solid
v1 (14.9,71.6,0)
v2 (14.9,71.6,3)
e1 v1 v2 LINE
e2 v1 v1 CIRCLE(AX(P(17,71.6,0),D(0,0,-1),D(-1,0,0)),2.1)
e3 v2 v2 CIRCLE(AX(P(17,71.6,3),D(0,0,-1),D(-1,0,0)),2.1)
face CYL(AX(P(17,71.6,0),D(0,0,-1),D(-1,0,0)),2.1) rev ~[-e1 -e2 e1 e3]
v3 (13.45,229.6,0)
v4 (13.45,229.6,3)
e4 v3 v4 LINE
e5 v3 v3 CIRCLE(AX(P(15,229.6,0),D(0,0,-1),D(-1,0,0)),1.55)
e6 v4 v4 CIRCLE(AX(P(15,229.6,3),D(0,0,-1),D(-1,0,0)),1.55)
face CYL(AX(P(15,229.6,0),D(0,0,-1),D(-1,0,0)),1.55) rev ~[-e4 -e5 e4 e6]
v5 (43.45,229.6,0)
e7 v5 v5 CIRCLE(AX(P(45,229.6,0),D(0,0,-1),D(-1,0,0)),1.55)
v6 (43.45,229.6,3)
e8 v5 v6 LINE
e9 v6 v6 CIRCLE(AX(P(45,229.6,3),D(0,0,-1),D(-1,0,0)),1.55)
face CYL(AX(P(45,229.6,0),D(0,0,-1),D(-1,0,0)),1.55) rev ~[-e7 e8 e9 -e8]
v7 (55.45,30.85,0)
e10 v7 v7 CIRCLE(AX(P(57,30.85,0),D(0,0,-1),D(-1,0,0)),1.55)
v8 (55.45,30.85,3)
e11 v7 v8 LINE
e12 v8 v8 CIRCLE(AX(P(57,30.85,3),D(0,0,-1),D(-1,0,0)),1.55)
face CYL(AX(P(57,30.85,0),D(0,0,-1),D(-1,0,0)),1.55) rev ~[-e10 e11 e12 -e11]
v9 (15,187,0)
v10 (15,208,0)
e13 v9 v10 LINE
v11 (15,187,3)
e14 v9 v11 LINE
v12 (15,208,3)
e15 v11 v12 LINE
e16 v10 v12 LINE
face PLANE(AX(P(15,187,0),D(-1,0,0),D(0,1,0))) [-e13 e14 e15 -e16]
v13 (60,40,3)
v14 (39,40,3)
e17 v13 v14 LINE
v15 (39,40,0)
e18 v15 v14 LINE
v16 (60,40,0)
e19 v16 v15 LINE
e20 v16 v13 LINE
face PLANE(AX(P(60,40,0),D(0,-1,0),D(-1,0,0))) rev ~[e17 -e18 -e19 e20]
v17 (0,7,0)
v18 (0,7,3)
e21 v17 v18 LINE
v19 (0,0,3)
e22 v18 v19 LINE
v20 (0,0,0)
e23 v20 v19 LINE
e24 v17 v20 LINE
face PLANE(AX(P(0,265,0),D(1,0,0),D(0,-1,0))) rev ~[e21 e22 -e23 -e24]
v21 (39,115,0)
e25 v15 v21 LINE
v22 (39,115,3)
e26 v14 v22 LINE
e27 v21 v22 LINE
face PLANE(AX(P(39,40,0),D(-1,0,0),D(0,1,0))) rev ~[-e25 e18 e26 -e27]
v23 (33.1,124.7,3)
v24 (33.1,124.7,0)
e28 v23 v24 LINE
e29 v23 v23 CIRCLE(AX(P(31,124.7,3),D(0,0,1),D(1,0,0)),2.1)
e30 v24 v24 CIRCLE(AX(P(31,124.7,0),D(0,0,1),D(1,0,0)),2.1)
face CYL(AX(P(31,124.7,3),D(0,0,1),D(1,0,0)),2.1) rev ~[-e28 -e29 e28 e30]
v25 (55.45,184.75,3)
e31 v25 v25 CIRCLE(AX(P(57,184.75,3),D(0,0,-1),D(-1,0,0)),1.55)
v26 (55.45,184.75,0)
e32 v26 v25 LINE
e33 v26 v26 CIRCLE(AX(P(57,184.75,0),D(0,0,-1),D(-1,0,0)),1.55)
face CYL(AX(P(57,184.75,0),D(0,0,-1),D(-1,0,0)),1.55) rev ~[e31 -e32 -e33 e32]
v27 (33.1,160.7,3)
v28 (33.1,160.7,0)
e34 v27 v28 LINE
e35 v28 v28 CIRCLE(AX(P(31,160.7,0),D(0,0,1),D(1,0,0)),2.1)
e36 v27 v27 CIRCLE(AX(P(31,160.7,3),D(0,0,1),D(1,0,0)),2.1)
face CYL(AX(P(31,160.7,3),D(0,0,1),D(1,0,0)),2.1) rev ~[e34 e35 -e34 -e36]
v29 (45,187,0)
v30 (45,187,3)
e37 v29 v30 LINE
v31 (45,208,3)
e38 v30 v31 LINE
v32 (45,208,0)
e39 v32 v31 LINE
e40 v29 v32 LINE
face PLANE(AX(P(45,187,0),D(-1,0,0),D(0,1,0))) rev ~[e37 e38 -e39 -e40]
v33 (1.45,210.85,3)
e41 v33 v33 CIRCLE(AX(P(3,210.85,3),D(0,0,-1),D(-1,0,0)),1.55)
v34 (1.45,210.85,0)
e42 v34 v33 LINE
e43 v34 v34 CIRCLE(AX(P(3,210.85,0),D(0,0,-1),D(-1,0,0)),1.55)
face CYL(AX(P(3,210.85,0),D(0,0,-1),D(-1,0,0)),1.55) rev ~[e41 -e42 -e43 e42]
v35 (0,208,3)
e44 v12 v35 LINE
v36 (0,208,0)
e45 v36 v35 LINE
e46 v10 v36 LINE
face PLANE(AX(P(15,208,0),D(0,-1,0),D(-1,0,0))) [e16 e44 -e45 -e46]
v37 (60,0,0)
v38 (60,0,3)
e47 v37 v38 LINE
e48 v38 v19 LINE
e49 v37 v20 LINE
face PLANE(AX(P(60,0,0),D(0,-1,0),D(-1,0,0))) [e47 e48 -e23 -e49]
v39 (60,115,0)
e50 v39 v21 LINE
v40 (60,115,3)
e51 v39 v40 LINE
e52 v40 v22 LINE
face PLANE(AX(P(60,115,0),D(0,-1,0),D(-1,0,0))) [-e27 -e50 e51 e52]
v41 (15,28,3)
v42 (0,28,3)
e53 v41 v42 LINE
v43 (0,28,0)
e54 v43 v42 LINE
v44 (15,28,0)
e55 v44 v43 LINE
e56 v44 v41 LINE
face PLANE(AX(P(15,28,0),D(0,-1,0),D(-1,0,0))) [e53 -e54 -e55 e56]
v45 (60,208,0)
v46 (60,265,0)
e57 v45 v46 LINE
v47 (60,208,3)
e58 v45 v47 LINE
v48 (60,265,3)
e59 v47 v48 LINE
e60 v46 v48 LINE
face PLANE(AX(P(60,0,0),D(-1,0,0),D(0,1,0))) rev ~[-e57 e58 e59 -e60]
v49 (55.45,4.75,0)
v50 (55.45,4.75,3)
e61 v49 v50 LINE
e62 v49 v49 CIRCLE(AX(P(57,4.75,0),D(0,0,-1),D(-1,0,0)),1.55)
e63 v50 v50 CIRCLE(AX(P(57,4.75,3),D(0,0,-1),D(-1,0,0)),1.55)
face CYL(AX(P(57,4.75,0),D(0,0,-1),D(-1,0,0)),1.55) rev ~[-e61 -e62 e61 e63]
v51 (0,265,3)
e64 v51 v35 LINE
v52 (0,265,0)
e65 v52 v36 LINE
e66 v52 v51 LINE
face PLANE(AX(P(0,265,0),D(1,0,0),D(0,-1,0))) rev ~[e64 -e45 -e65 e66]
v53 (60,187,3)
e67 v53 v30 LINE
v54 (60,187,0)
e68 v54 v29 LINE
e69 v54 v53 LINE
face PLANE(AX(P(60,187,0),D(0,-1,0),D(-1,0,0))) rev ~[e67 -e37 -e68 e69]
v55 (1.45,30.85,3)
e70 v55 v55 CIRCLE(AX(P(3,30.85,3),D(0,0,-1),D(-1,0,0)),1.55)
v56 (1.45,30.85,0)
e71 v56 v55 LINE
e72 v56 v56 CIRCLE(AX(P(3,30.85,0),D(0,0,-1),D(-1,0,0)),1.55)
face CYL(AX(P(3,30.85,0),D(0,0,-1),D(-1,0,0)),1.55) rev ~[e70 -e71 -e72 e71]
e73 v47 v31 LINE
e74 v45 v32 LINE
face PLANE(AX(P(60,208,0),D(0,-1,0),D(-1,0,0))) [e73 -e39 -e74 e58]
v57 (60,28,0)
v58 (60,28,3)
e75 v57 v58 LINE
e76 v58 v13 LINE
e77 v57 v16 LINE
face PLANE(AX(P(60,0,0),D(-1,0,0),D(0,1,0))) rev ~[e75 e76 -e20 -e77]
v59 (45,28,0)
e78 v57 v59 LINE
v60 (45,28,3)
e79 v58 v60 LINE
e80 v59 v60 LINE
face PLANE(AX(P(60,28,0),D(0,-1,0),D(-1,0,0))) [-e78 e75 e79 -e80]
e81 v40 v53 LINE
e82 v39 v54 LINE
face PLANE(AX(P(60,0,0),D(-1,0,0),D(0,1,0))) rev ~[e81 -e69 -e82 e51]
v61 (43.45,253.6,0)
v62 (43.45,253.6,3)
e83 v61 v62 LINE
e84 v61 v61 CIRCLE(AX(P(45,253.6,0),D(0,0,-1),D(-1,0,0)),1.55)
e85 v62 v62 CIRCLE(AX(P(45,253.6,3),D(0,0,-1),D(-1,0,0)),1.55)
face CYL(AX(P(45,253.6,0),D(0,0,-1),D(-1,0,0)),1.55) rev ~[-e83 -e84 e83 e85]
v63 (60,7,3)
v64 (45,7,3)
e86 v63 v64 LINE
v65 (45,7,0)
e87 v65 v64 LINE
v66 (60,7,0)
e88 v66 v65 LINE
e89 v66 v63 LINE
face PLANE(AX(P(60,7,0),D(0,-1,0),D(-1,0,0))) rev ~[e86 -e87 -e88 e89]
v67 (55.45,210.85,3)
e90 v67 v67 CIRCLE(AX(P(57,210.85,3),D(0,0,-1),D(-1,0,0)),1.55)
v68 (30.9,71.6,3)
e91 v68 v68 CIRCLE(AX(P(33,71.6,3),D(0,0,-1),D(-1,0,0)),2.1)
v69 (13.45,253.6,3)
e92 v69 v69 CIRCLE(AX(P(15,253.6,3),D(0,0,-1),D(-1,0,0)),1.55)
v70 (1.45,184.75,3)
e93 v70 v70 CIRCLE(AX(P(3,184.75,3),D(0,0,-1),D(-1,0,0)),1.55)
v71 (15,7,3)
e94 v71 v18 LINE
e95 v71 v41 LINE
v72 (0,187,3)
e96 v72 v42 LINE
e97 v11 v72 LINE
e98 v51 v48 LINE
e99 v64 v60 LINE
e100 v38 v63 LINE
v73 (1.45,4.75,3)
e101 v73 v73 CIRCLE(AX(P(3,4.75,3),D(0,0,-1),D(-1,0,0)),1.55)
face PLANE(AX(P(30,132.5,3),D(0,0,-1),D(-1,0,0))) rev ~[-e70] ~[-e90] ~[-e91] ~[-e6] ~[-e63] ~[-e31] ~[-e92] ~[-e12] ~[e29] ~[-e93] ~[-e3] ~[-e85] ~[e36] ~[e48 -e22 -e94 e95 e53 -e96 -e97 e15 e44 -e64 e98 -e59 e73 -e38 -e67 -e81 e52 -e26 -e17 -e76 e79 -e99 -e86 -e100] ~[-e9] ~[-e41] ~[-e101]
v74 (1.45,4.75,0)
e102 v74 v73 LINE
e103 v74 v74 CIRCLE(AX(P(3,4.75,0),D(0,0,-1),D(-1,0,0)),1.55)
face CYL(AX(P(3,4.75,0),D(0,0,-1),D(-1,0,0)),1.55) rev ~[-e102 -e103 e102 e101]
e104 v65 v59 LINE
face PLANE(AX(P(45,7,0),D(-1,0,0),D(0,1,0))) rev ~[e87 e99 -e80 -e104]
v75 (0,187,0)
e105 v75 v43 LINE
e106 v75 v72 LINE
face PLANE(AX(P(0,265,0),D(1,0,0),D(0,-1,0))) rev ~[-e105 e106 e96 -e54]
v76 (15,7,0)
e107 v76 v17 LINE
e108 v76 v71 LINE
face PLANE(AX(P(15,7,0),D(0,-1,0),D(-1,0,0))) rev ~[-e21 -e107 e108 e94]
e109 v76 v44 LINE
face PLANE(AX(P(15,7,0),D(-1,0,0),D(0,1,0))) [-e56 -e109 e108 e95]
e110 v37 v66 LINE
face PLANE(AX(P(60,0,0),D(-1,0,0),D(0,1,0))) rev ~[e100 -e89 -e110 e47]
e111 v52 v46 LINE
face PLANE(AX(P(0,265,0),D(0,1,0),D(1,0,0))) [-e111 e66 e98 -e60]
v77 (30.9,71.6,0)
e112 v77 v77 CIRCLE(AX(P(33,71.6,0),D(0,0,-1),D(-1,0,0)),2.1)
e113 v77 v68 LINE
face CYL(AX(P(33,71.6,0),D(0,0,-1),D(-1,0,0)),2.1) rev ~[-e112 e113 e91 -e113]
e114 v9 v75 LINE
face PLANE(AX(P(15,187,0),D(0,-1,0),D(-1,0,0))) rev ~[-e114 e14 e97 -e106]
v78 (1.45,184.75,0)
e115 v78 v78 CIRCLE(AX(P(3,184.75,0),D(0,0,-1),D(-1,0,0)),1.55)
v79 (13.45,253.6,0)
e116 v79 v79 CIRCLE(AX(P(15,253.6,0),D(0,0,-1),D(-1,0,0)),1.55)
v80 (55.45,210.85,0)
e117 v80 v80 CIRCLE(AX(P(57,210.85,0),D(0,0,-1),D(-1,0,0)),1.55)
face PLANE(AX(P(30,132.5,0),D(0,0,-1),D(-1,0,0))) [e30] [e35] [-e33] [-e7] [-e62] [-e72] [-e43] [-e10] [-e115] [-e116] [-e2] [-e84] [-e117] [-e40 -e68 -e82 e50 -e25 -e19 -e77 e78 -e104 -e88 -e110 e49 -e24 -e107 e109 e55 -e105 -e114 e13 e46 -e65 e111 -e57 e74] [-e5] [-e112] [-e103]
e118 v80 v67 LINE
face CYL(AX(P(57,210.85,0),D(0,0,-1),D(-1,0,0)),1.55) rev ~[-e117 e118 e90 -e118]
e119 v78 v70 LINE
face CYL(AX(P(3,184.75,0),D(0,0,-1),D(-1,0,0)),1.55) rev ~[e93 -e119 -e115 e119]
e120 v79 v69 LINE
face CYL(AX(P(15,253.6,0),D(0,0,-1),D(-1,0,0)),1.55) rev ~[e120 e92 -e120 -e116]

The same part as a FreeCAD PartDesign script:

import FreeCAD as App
import Part
import Sketcher


def add_polygon(sketch, points):
    """Adds a closed chain of lines whose ends are joined by coincident constraints."""
    first, n = sketch.GeometryCount, len(points)
    for a, b in zip(points, points[1:] + points[:1]):
        sketch.addGeometry(Part.LineSegment(App.Vector(*a, 0), App.Vector(*b, 0)), False)
    for i in range(n):
        sketch.addConstraint(Sketcher.Constraint("Coincident", first + i, 2, first + (i + 1) % n, 1))

doc = App.newDocument("Part")
params = doc.addObject("Spreadsheet::Sheet", "Params")
for row, (alias, value) in enumerate([
    ("sketch1_width", "60 mm"),
    ("sketch1_height", "265 mm"),
    ("pad1_length", "3 mm"),
    ("sketch2_width", "15 mm"),
    ("sketch2_height", "21 mm"),
    ("pocket1_length", "3 mm"),
    ("sketch3_diameter", "3.1 mm"),
    ("sketch4_width", "21 mm"),
    ("sketch4_height", "75 mm"),
    ("sketch5_diameter", "4.2 mm"),
    ("sketch6_diameter", "4.2 mm"),
], start=1):
    params.set(f"A{row}", alias)
    params.set(f"B{row}", "=" + value)
    params.setAlias(f"B{row}", alias)

body = doc.addObject("PartDesign::Body", "Body")

sketch1 = body.newObject("Sketcher::SketchObject", "Sketch")
sketch1.AttachmentSupport = (doc.getObject("XY_Plane"), [""])
sketch1.MapMode = "FlatFace"
add_polygon(sketch1, [(0, 265), (0, 0), (60, 0), (60, 265)])
sketch1.addConstraint(Sketcher.Constraint("Vertical", 0))
sketch1.addConstraint(Sketcher.Constraint("Horizontal", 1))
sketch1.addConstraint(Sketcher.Constraint("Vertical", 2))
sketch1.addConstraint(Sketcher.Constraint("Horizontal", 3))
sketch1.addConstraint(Sketcher.Constraint("Coincident", 0, 2, -1, 1))
sketch1.addConstraint(Sketcher.Constraint("DistanceX", 1, 1, 1, 2, 60.0))
sketch1.addConstraint(Sketcher.Constraint("DistanceY", 0, 2, 0, 1, 265.0))
sketch1.setExpression("Constraints[9]", "Params.sketch1_width")
sketch1.setExpression("Constraints[10]", "Params.sketch1_height")
pad1 = body.newObject("PartDesign::Pad", "Pad")
pad1.Profile = sketch1
pad1.setExpression("Length", "Params.pad1_length")

sketch2 = body.newObject("Sketcher::SketchObject", "Sketch001")
sketch2.AttachmentSupport = (doc.getObject("XY_Plane"), [""])
sketch2.MapMode = "FlatFace"
add_polygon(sketch2, [(60, 28), (60, 7), (45, 7), (45, 28)])
add_polygon(sketch2, [(15, 28), (15, 7), (0, 7), (0, 28)])
add_polygon(sketch2, [(15, 208), (15, 187), (0, 187), (0, 208)])
add_polygon(sketch2, [(60, 208), (60, 187), (45, 187), (45, 208)])
sketch2.addConstraint(Sketcher.Constraint("Vertical", 0))
sketch2.addConstraint(Sketcher.Constraint("Horizontal", 1))
sketch2.addConstraint(Sketcher.Constraint("Vertical", 2))
sketch2.addConstraint(Sketcher.Constraint("Horizontal", 3))
sketch2.addConstraint(Sketcher.Constraint("Vertical", 4))
sketch2.addConstraint(Sketcher.Constraint("Horizontal", 5))
sketch2.addConstraint(Sketcher.Constraint("Vertical", 6))
sketch2.addConstraint(Sketcher.Constraint("Horizontal", 7))
sketch2.addConstraint(Sketcher.Constraint("Vertical", 8))
sketch2.addConstraint(Sketcher.Constraint("Horizontal", 9))
sketch2.addConstraint(Sketcher.Constraint("Vertical", 10))
sketch2.addConstraint(Sketcher.Constraint("Horizontal", 11))
sketch2.addConstraint(Sketcher.Constraint("Vertical", 12))
sketch2.addConstraint(Sketcher.Constraint("Horizontal", 13))
sketch2.addConstraint(Sketcher.Constraint("Vertical", 14))
sketch2.addConstraint(Sketcher.Constraint("Horizontal", 15))
sketch2.addConstraint(Sketcher.Constraint("PointOnObject", 5, 2, -2))
sketch2.addConstraint(Sketcher.Constraint("PointOnObject", 9, 2, -2))
sketch2.addConstraint(Sketcher.Constraint("Horizontal", 1, 2, 4, 2))
sketch2.addConstraint(Sketcher.Constraint("Horizontal", 3, 2, 6, 2))
sketch2.addConstraint(Sketcher.Constraint("Horizontal", 9, 2, 12, 2))
sketch2.addConstraint(Sketcher.Constraint("Horizontal", 11, 2, 14, 2))
sketch2.addConstraint(Sketcher.Constraint("Vertical", 7, 2, 8, 2))
sketch2.addConstraint(Sketcher.Constraint("Vertical", 3, 2, 12, 2))
sketch2.addConstraint(Sketcher.Constraint("Vertical", 2, 2, 13, 2))
sketch2.addConstraint(Sketcher.Constraint("Equal", 3, 5))
sketch2.addConstraint(Sketcher.Constraint("Equal", 6, 8))
sketch2.addConstraint(Sketcher.Constraint("DistanceX", 1, 2, 1, 1, 15.0))
sketch2.addConstraint(Sketcher.Constraint("DistanceY", 0, 2, 0, 1, 21.0))
sketch2.addConstraint(Sketcher.Constraint("DistanceX", -1, 1, 0, 2, 60.0))
sketch2.addConstraint(Sketcher.Constraint("DistanceY", -1, 1, 0, 2, 7.0))
sketch2.addConstraint(Sketcher.Constraint("DistanceY", -1, 1, 8, 2, 187.0))
sketch2.setExpression("Constraints[43]", "Params.sketch2_width")
sketch2.setExpression("Constraints[44]", "Params.sketch2_height")
pocket1 = body.newObject("PartDesign::Pocket", "Pocket")
pocket1.Profile = sketch2
pocket1.setExpression("Length", "Params.pocket1_length")
pocket1.Reversed = True

sketch3 = body.newObject("Sketcher::SketchObject", "Sketch002")
sketch3.AttachmentSupport = (doc.getObject("XY_Plane"), [""])
sketch3.MapMode = "FlatFace"
sketch3.addGeometry(Part.Circle(App.Vector(45, 229.6, 0), App.Vector(0, 0, 1), 1.55), False)
sketch3.addGeometry(Part.Circle(App.Vector(45, 253.6, 0), App.Vector(0, 0, 1), 1.55), False)
sketch3.addGeometry(Part.Circle(App.Vector(15, 253.6, 0), App.Vector(0, 0, 1), 1.55), False)
sketch3.addGeometry(Part.Circle(App.Vector(15, 229.6, 0), App.Vector(0, 0, 1), 1.55), False)
sketch3.addGeometry(Part.Circle(App.Vector(57, 184.75, 0), App.Vector(0, 0, 1), 1.55), False)
sketch3.addGeometry(Part.Circle(App.Vector(3, 184.75, 0), App.Vector(0, 0, 1), 1.55), False)
sketch3.addGeometry(Part.Circle(App.Vector(3, 210.85, 0), App.Vector(0, 0, 1), 1.55), False)
sketch3.addGeometry(Part.Circle(App.Vector(57, 210.85, 0), App.Vector(0, 0, 1), 1.55), False)
sketch3.addGeometry(Part.Circle(App.Vector(57, 4.75, 0), App.Vector(0, 0, 1), 1.55), False)
sketch3.addGeometry(Part.Circle(App.Vector(3, 4.75, 0), App.Vector(0, 0, 1), 1.55), False)
sketch3.addGeometry(Part.Circle(App.Vector(3, 30.85, 0), App.Vector(0, 0, 1), 1.55), False)
sketch3.addGeometry(Part.Circle(App.Vector(57, 30.85, 0), App.Vector(0, 0, 1), 1.55), False)
sketch3.addConstraint(Sketcher.Constraint("Equal", 0, 1))
sketch3.addConstraint(Sketcher.Constraint("Equal", 1, 2))
sketch3.addConstraint(Sketcher.Constraint("Equal", 2, 3))
sketch3.addConstraint(Sketcher.Constraint("Equal", 3, 4))
sketch3.addConstraint(Sketcher.Constraint("Equal", 4, 5))
sketch3.addConstraint(Sketcher.Constraint("Equal", 5, 6))
sketch3.addConstraint(Sketcher.Constraint("Equal", 6, 7))
sketch3.addConstraint(Sketcher.Constraint("Equal", 7, 8))
sketch3.addConstraint(Sketcher.Constraint("Equal", 8, 9))
sketch3.addConstraint(Sketcher.Constraint("Equal", 9, 10))
sketch3.addConstraint(Sketcher.Constraint("Equal", 10, 11))
sketch3.addConstraint(Sketcher.Constraint("Horizontal", 1, 3, 2, 3))
sketch3.addConstraint(Sketcher.Constraint("Horizontal", 0, 3, 3, 3))
sketch3.addConstraint(Sketcher.Constraint("Horizontal", 4, 3, 5, 3))
sketch3.addConstraint(Sketcher.Constraint("Horizontal", 6, 3, 7, 3))
sketch3.addConstraint(Sketcher.Constraint("Horizontal", 8, 3, 9, 3))
sketch3.addConstraint(Sketcher.Constraint("Horizontal", 10, 3, 11, 3))
sketch3.addConstraint(Sketcher.Constraint("Vertical", 0, 3, 1, 3))
sketch3.addConstraint(Sketcher.Constraint("Vertical", 2, 3, 3, 3))
sketch3.addConstraint(Sketcher.Constraint("Vertical", 5, 3, 6, 3))
sketch3.addConstraint(Sketcher.Constraint("Vertical", 4, 3, 7, 3))
sketch3.addConstraint(Sketcher.Constraint("Vertical", 7, 3, 8, 3))
sketch3.addConstraint(Sketcher.Constraint("Vertical", 6, 3, 9, 3))
sketch3.addConstraint(Sketcher.Constraint("Vertical", 9, 3, 10, 3))
sketch3.addConstraint(Sketcher.Constraint("Vertical", 8, 3, 11, 3))
sketch3.addConstraint(Sketcher.Constraint("Diameter", 0, 3.1))
sketch3.addConstraint(Sketcher.Constraint("DistanceX", -1, 1, 0, 3, 45.0))
sketch3.addConstraint(Sketcher.Constraint("DistanceX", -1, 1, 2, 3, 15.0))
sketch3.addConstraint(Sketcher.Constraint("DistanceX", -1, 1, 4, 3, 57.0))
sketch3.addConstraint(Sketcher.Constraint("DistanceX", -1, 1, 5, 3, 3.0))
sketch3.addConstraint(Sketcher.Constraint("DistanceY", 0, 3, 1, 3, 24.0))
sketch3.addConstraint(Sketcher.Constraint("DistanceY", 8, 3, 4, 3, 180.0))
sketch3.addConstraint(Sketcher.Constraint("DistanceY", 10, 3, 6, 3, 180.0))
sketch3.addConstraint(Sketcher.Constraint("DistanceY", -1, 1, 0, 3, 229.6))
sketch3.addConstraint(Sketcher.Constraint("DistanceY", 5, 3, 6, 3, 26.1))
sketch3.addConstraint(Sketcher.Constraint("DistanceY", -1, 1, 4, 3, 184.75))
sketch3.setExpression("Constraints[25]", "Params.sketch3_diameter")
pocket2 = body.newObject("PartDesign::Pocket", "Pocket001")
pocket2.Profile = sketch3
pocket2.Type = "ThroughAll"
pocket2.Reversed = True

sketch4 = body.newObject("Sketcher::SketchObject", "Sketch003")
sketch4.AttachmentSupport = (doc.getObject("XY_Plane"), [""])
sketch4.MapMode = "FlatFace"
add_polygon(sketch4, [(60, 115), (60, 40), (39, 40), (39, 115)])
sketch4.addConstraint(Sketcher.Constraint("Vertical", 0))
sketch4.addConstraint(Sketcher.Constraint("Horizontal", 1))
sketch4.addConstraint(Sketcher.Constraint("Vertical", 2))
sketch4.addConstraint(Sketcher.Constraint("Horizontal", 3))
sketch4.addConstraint(Sketcher.Constraint("DistanceX", 1, 2, 1, 1, 21.0))
sketch4.addConstraint(Sketcher.Constraint("DistanceY", 0, 2, 0, 1, 75.0))
sketch4.addConstraint(Sketcher.Constraint("DistanceX", -1, 1, 0, 2, 60.0))
sketch4.addConstraint(Sketcher.Constraint("DistanceY", -1, 1, 0, 2, 40.0))
sketch4.setExpression("Constraints[8]", "Params.sketch4_width")
sketch4.setExpression("Constraints[9]", "Params.sketch4_height")
pocket3 = body.newObject("PartDesign::Pocket", "Pocket002")
pocket3.Profile = sketch4
pocket3.Type = "ThroughAll"
pocket3.Reversed = True

sketch5 = body.newObject("Sketcher::SketchObject", "Sketch004")
sketch5.AttachmentSupport = (doc.getObject("XY_Plane"), [""])
sketch5.MapMode = "FlatFace"
sketch5.AttachmentOffset = App.Placement(App.Vector(0, 0, 3), App.Rotation())
sketch5.addGeometry(Part.Circle(App.Vector(31, 160.7, 0), App.Vector(0, 0, 1), 2.1), False)
sketch5.addGeometry(Part.Circle(App.Vector(31, 124.7, 0), App.Vector(0, 0, 1), 2.1), False)
sketch5.addConstraint(Sketcher.Constraint("Equal", 0, 1))
sketch5.addConstraint(Sketcher.Constraint("Vertical", 0, 3, 1, 3))
sketch5.addConstraint(Sketcher.Constraint("Diameter", 0, 4.2))
sketch5.addConstraint(Sketcher.Constraint("DistanceX", -1, 1, 0, 3, 31.0))
sketch5.addConstraint(Sketcher.Constraint("DistanceY", 1, 3, 0, 3, 36.0))
sketch5.addConstraint(Sketcher.Constraint("DistanceY", -1, 1, 0, 3, 160.7))
sketch5.setExpression("Constraints[2]", "Params.sketch5_diameter")
pocket4 = body.newObject("PartDesign::Pocket", "Pocket003")
pocket4.Profile = sketch5
pocket4.Type = "ThroughAll"

sketch6 = body.newObject("Sketcher::SketchObject", "Sketch005")
sketch6.AttachmentSupport = (doc.getObject("XY_Plane"), [""])
sketch6.MapMode = "FlatFace"
sketch6.addGeometry(Part.Circle(App.Vector(17, 71.6, 0), App.Vector(0, 0, 1), 2.1), False)
sketch6.addGeometry(Part.Circle(App.Vector(33, 71.6, 0), App.Vector(0, 0, 1), 2.1), False)
sketch6.addConstraint(Sketcher.Constraint("Equal", 0, 1))
sketch6.addConstraint(Sketcher.Constraint("Horizontal", 0, 3, 1, 3))
sketch6.addConstraint(Sketcher.Constraint("Diameter", 0, 4.2))
sketch6.addConstraint(Sketcher.Constraint("DistanceX", -1, 1, 0, 3, 17.0))
sketch6.addConstraint(Sketcher.Constraint("DistanceX", -1, 1, 1, 3, 33.0))
sketch6.addConstraint(Sketcher.Constraint("DistanceY", -1, 1, 0, 3, 71.6))
sketch6.setExpression("Constraints[2]", "Params.sketch6_diameter")
pocket5 = body.newObject("PartDesign::Pocket", "Pocket004")
pocket5.Profile = sketch6
pocket5.Type = "ThroughAll"
pocket5.Reversed = True

doc.recompute()
